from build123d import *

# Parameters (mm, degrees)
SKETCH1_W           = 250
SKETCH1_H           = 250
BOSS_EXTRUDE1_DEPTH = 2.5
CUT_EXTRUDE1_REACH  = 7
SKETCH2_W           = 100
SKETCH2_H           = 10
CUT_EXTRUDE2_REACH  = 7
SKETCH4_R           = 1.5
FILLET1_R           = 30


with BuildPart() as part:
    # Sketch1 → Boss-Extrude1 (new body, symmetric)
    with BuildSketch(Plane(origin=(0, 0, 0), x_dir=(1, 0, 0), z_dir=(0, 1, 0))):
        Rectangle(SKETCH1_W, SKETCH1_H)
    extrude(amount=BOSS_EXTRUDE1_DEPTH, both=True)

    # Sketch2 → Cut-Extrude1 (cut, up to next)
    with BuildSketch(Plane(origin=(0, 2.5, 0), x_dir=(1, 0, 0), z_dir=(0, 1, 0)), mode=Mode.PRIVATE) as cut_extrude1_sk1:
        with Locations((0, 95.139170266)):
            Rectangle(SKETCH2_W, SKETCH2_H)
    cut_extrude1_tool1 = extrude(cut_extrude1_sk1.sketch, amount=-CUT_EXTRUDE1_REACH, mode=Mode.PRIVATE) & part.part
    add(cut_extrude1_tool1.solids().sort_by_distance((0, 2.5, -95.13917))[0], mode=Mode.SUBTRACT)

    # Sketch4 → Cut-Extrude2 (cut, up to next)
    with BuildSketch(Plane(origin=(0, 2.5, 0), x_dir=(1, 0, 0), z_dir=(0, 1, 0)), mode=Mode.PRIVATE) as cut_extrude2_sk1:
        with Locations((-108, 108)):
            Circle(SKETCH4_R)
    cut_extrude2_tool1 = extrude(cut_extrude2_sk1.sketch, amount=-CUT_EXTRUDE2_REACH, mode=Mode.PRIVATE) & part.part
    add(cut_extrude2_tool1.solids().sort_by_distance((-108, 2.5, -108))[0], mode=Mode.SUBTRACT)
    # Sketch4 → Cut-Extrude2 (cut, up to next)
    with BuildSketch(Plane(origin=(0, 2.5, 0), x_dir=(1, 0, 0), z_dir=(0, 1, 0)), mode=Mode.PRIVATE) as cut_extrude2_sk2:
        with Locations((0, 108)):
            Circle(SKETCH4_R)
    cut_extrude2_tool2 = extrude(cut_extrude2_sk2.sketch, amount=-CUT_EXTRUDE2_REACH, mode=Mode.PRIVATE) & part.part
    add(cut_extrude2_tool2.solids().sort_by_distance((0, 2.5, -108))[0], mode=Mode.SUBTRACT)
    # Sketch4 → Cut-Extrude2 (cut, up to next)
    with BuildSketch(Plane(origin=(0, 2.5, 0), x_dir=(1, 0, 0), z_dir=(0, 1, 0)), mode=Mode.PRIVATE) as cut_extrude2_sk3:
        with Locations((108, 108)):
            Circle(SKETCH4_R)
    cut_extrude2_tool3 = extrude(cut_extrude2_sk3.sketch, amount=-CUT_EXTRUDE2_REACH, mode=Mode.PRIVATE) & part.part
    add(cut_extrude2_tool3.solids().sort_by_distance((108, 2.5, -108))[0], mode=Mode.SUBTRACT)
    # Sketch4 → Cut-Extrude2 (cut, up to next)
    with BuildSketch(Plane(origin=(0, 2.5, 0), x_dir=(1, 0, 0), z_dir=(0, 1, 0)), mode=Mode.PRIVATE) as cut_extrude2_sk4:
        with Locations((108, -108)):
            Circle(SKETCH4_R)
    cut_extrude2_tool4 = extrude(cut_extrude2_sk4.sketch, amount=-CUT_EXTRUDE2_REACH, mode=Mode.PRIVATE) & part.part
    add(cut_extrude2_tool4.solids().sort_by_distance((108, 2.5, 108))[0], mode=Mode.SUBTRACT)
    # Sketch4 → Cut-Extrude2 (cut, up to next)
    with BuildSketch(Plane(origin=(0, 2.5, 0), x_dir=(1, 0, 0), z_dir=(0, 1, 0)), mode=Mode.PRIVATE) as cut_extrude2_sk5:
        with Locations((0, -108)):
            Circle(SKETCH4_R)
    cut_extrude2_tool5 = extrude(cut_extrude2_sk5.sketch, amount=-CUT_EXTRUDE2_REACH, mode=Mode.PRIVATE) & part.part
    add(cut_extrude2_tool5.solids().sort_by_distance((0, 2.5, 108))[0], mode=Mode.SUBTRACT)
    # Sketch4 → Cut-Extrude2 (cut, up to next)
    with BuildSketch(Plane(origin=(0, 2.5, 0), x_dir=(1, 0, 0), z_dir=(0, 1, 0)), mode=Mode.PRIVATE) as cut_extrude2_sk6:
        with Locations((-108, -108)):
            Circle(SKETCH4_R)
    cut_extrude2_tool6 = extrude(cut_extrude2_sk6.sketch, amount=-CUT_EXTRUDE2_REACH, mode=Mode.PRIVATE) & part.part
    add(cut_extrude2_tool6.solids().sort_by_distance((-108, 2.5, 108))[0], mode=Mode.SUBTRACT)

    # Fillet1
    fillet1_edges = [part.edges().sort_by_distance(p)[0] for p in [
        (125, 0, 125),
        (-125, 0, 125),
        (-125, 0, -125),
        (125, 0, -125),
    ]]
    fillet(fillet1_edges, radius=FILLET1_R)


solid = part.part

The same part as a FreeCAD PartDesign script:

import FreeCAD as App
import Part
import Sketcher

V = App.Vector


def edges_at(feature, points):
    """Names of the edges that pass closest to the given points."""
    edges = feature.Shape.Edges
    near = lambda p: min(range(len(edges)), key=lambda i: edges[i].distToShape(Part.Vertex(*p))[0])
    return sorted({f"Edge{near(p) + 1}" for p in points})


def add_polygon(sketch, points):
    """Adds a closed chain of lines whose ends are joined by coincident constraints."""
    first, n = sketch.GeometryCount, len(points)
    for a, b in zip(points, points[1:] + points[:1]):
        sketch.addGeometry(Part.LineSegment(App.Vector(*a, 0), App.Vector(*b, 0)), False)
    for i in range(n):
        sketch.addConstraint(Sketcher.Constraint("Coincident", first + i, 2, first + (i + 1) % n, 1))

doc = App.newDocument("Part")
body = doc.addObject("PartDesign::Body", "Body")

sketch1 = body.newObject("Sketcher::SketchObject", "Sketch")
sketch1.AttachmentSupport = (doc.getObject("XZ_Plane"), [""])
sketch1.MapMode = "FlatFace"
add_polygon(sketch1, [(-125, -125), (-125, 125), (125, 125), (125, -125)])
sketch1.addConstraint(Sketcher.Constraint("Vertical", 0))
sketch1.addConstraint(Sketcher.Constraint("Horizontal", 1))
sketch1.addConstraint(Sketcher.Constraint("Vertical", 2))
sketch1.addConstraint(Sketcher.Constraint("Horizontal", 3))
sketch1.addConstraint(Sketcher.Constraint("Symmetric", 0, 2, 2, 2, -1, 1))
sketch1.addConstraint(Sketcher.Constraint("Equal", 3, 0))
sketch1.addConstraint(Sketcher.Constraint("DistanceX", 1, 1, 1, 2, 250.0))
pad1 = body.newObject("PartDesign::Pad", "Pad")
pad1.Profile = sketch1
pad1.Length = 5
pad1.Midplane = True

sketch2 = body.newObject("Sketcher::SketchObject", "Sketch001")
sketch2.AttachmentSupport = (doc.getObject("XZ_Plane"), [""])
sketch2.MapMode = "FlatFace"
sketch2.AttachmentOffset = App.Placement(V(0, 0, -2.5), App.Rotation())
add_polygon(sketch2, [(-50, -100), (-50, -90), (50, -90), (50, -100)])
sketch2.addConstraint(Sketcher.Constraint("Vertical", 0))
sketch2.addConstraint(Sketcher.Constraint("Horizontal", 1))
sketch2.addConstraint(Sketcher.Constraint("Vertical", 2))
sketch2.addConstraint(Sketcher.Constraint("Horizontal", 3))
sketch2.addConstraint(Sketcher.Constraint("DistanceX", 1, 1, 1, 2, 100.0))
sketch2.addConstraint(Sketcher.Constraint("DistanceY", 0, 1, 0, 2, 10.0))
sketch2.addConstraint(Sketcher.Constraint("DistanceX", 0, 2, -1, 1, 50.0))
sketch2.addConstraint(Sketcher.Constraint("DistanceY", 0, 2, -1, 1, 90.13917))
pocket1 = body.newObject("PartDesign::Pocket", "Pocket")
pocket1.Profile = sketch2
pocket1.Type = "UpToFirst"
pocket1.Reversed = True

sketch3 = body.newObject("Sketcher::SketchObject", "Sketch002")
sketch3.AttachmentSupport = (doc.getObject("XZ_Plane"), [""])
sketch3.MapMode = "FlatFace"
sketch3.AttachmentOffset = App.Placement(V(0, 0, -2.5), App.Rotation())
sketch3.addGeometry(Part.Circle(V(-108, -108, 0), V(0, 0, 1), 1.5), False)
sketch3.addConstraint(Sketcher.Constraint("Diameter", 0, 3.0))
sketch3.addConstraint(Sketcher.Constraint("DistanceX", 0, 3, -1, 1, 108.0))
sketch3.addConstraint(Sketcher.Constraint("DistanceY", 0, 3, -1, 1, 108.0))
pocket2 = body.newObject("PartDesign::Pocket", "Pocket001")
pocket2.Profile = sketch3
pocket2.Type = "UpToFirst"
pocket2.Reversed = True

sketch4 = body.newObject("Sketcher::SketchObject", "Sketch003")
sketch4.AttachmentSupport = (doc.getObject("XZ_Plane"), [""])
sketch4.MapMode = "FlatFace"
sketch4.AttachmentOffset = App.Placement(V(0, 0, -2.5), App.Rotation())
sketch4.addGeometry(Part.Circle(V(0, -108, 0), V(0, 0, 1), 1.5), False)
sketch4.addConstraint(Sketcher.Constraint("PointOnObject", 0, 3, -2))
sketch4.addConstraint(Sketcher.Constraint("Diameter", 0, 3.0))
sketch4.addConstraint(Sketcher.Constraint("DistanceY", 0, 3, -1, 1, 108.0))
pocket3 = body.newObject("PartDesign::Pocket", "Pocket002")
pocket3.Profile = sketch4
pocket3.Type = "UpToFirst"
pocket3.Reversed = True

sketch5 = body.newObject("Sketcher::SketchObject", "Sketch004")
sketch5.AttachmentSupport = (doc.getObject("XZ_Plane"), [""])
sketch5.MapMode = "FlatFace"
sketch5.AttachmentOffset = App.Placement(V(0, 0, -2.5), App.Rotation())
sketch5.addGeometry(Part.Circle(V(108, -108, 0), V(0, 0, 1), 1.5), False)
sketch5.addConstraint(Sketcher.Constraint("Diameter", 0, 3.0))
sketch5.addConstraint(Sketcher.Constraint("DistanceX", -1, 1, 0, 3, 108.0))
sketch5.addConstraint(Sketcher.Constraint("DistanceY", 0, 3, -1, 1, 108.0))
pocket4 = body.newObject("PartDesign::Pocket", "Pocket003")
pocket4.Profile = sketch5
pocket4.Type = "UpToFirst"
pocket4.Reversed = True

sketch6 = body.newObject("Sketcher::SketchObject", "Sketch005")
sketch6.AttachmentSupport = (doc.getObject("XZ_Plane"), [""])
sketch6.MapMode = "FlatFace"
sketch6.AttachmentOffset = App.Placement(V(0, 0, -2.5), App.Rotation())
sketch6.addGeometry(Part.Circle(V(108, 108, 0), V(0, 0, 1), 1.5), False)
sketch6.addConstraint(Sketcher.Constraint("Diameter", 0, 3.0))
sketch6.addConstraint(Sketcher.Constraint("DistanceX", -1, 1, 0, 3, 108.0))
sketch6.addConstraint(Sketcher.Constraint("DistanceY", -1, 1, 0, 3, 108.0))
pocket5 = body.newObject("PartDesign::Pocket", "Pocket004")
pocket5.Profile = sketch6
pocket5.Type = "UpToFirst"
pocket5.Reversed = True

sketch7 = body.newObject("Sketcher::SketchObject", "Sketch006")
sketch7.AttachmentSupport = (doc.getObject("XZ_Plane"), [""])
sketch7.MapMode = "FlatFace"
sketch7.AttachmentOffset = App.Placement(V(0, 0, -2.5), App.Rotation())
sketch7.addGeometry(Part.Circle(V(0, 108, 0), V(0, 0, 1), 1.5), False)
sketch7.addConstraint(Sketcher.Constraint("PointOnObject", 0, 3, -2))
sketch7.addConstraint(Sketcher.Constraint("Diameter", 0, 3.0))
sketch7.addConstraint(Sketcher.Constraint("DistanceY", -1, 1, 0, 3, 108.0))
pocket6 = body.newObject("PartDesign::Pocket", "Pocket005")
pocket6.Profile = sketch7
pocket6.Type = "UpToFirst"
pocket6.Reversed = True

sketch8 = body.newObject("Sketcher::SketchObject", "Sketch007")
sketch8.AttachmentSupport = (doc.getObject("XZ_Plane"), [""])
sketch8.MapMode = "FlatFace"
sketch8.AttachmentOffset = App.Placement(V(0, 0, -2.5), App.Rotation())
sketch8.addGeometry(Part.Circle(V(-108, 108, 0), V(0, 0, 1), 1.5), False)
sketch8.addConstraint(Sketcher.Constraint("Diameter", 0, 3.0))
sketch8.addConstraint(Sketcher.Constraint("DistanceX", 0, 3, -1, 1, 108.0))
sketch8.addConstraint(Sketcher.Constraint("DistanceY", -1, 1, 0, 3, 108.0))
pocket7 = body.newObject("PartDesign::Pocket", "Pocket006")
pocket7.Profile = sketch8
pocket7.Type = "UpToFirst"
pocket7.Reversed = True
doc.recompute()

fillet = body.newObject("PartDesign::Fillet", "Fillet")
fillet.Base = (pocket7, edges_at(pocket7, [
    (125, 0, 125),
    (-125, 0, 125),
    (-125, 0, -125),
    (125, 0, -125),
]))
fillet.Radius = 30

doc.recompute()
